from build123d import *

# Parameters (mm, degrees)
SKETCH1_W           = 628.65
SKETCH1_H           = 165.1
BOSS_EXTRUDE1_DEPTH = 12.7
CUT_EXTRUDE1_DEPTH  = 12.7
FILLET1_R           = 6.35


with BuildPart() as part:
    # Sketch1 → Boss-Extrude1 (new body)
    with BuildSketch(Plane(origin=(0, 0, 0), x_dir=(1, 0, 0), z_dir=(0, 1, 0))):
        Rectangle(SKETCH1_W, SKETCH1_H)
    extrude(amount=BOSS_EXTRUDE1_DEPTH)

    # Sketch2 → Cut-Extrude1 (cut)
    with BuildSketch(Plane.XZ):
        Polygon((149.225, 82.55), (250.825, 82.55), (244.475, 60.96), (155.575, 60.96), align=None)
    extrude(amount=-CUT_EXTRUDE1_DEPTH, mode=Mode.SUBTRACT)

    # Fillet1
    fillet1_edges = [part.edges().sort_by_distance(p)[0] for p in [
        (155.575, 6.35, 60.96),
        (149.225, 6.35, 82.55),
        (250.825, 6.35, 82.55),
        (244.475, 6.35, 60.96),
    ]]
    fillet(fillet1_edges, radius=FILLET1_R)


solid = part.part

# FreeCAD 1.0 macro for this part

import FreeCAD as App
import Part
import Sketcher

V = App.Vector
Q = App.Units.Quantity


def edges_at(feature, points):
    """Names of the edges that pass closest to the given points."""
    edges = feature.Shape.Edges
    near = lambda p: min(range(len(edges)), key=lambda i: edges[i].distToShape(Part.Vertex(*p))[0])
    return sorted({f"Edge{near(p) + 1}" for p in points})

doc = App.newDocument("Part")
body = doc.addObject("PartDesign::Body", "Body")

# Sketch on XZ plane
sketch1 = body.newObject("Sketcher::SketchObject", "Sketch")
sketch1.AttachmentSupport = (doc.getObject("XZ_Plane"), [""])
sketch1.MapMode = "FlatFace"
sketch1.addGeometry(Part.LineSegment(V(-314, -83, 0), V(-314, 83, 0)), False)
sketch1.addGeometry(Part.LineSegment(V(-314, 83, 0), V(314, 83, 0)), False)
sketch1.addGeometry(Part.LineSegment(V(314, 83, 0), V(314, -83, 0)), False)
sketch1.addGeometry(Part.LineSegment(V(314, -83, 0), V(-314, -83, 0)), False)
sketch1.addConstraint(Sketcher.Constraint("Coincident", 0, 2, 1, 1))
sketch1.addConstraint(Sketcher.Constraint("Coincident", 1, 2, 2, 1))
sketch1.addConstraint(Sketcher.Constraint("Coincident", 2, 2, 3, 1))
sketch1.addConstraint(Sketcher.Constraint("Coincident", 3, 2, 0, 1))
sketch1.addConstraint(Sketcher.Constraint("Vertical", 0))
sketch1.addConstraint(Sketcher.Constraint("Horizontal", 1))
sketch1.addConstraint(Sketcher.Constraint("Vertical", 2))
sketch1.addConstraint(Sketcher.Constraint("Horizontal", 3))
sketch1.addConstraint(Sketcher.Constraint("Symmetric", 0, 2, 2, 2, -1, 1))
sketch1.addConstraint(Sketcher.Constraint("DistanceY", 0, 1, 0, 2, Q("6.5 in")))
sketch1.addConstraint(Sketcher.Constraint("DistanceX", 1, 1, 1, 2, Q("24.75 in")))
pad1 = body.newObject("PartDesign::Pad", "Pad")
pad1.Profile = sketch1
pad1.Length = Q("0.5 in")
pad1.Reversed = True

# Sketch on XZ plane
sketch2 = body.newObject("Sketcher::SketchObject", "Sketch001")
sketch2.AttachmentSupport = (doc.getObject("XZ_Plane"), [""])
sketch2.MapMode = "FlatFace"
sketch2.addGeometry(Part.LineSegment(V(251, 83, 0), V(149, 83, 0)), False)
sketch2.addGeometry(Part.LineSegment(V(149, 83, 0), V(156, 61, 0)), False)
sketch2.addGeometry(Part.LineSegment(V(156, 61, 0), V(244, 61, 0)), False)
sketch2.addGeometry(Part.LineSegment(V(244, 61, 0), V(251, 83, 0)), False)
sketch2.addConstraint(Sketcher.Constraint("Coincident", 0, 2, 1, 1))
sketch2.addConstraint(Sketcher.Constraint("Coincident", 1, 2, 2, 1))
sketch2.addConstraint(Sketcher.Constraint("Coincident", 2, 2, 3, 1))
sketch2.addConstraint(Sketcher.Constraint("Coincident", 3, 2, 0, 1))
sketch2.addConstraint(Sketcher.Constraint("Horizontal", 0))
sketch2.addConstraint(Sketcher.Constraint("Horizontal", 2))
sketch2.addConstraint(Sketcher.Constraint("Equal", 1, 3))
sketch2.addConstraint(Sketcher.Constraint("DistanceX", 0, 2, 0, 1, Q("4 in")))
sketch2.addConstraint(Sketcher.Constraint("DistanceX", 2, 1, 2, 2, Q("3.5 in")))
sketch2.addConstraint(Sketcher.Constraint("DistanceY", -1, 1, 1, 2, Q("2.4 in")))
sketch2.addConstraint(Sketcher.Constraint("DistanceY", -1, 1, 0, 2, Q("3.25 in")))
sketch2.addConstraint(Sketcher.Constraint("DistanceX", -1, 1, 0, 2, Q("5.875 in")))
pocket1 = body.newObject("PartDesign::Pocket", "Pocket")
pocket1.Profile = sketch2
pocket1.Length = Q("0.5 in")
doc.recompute()

fillet = body.newObject("PartDesign::Fillet", "Fillet")
fillet.Base = (pocket1, edges_at(pocket1, [
    (155.575, 6.35, 60.96),
    (149.225, 6.35, 82.55),
    (250.825, 6.35, 82.55),
    (244.475, 6.35, 60.96),
]))
fillet.Radius = Q("0.25 in")

doc.recompute()
